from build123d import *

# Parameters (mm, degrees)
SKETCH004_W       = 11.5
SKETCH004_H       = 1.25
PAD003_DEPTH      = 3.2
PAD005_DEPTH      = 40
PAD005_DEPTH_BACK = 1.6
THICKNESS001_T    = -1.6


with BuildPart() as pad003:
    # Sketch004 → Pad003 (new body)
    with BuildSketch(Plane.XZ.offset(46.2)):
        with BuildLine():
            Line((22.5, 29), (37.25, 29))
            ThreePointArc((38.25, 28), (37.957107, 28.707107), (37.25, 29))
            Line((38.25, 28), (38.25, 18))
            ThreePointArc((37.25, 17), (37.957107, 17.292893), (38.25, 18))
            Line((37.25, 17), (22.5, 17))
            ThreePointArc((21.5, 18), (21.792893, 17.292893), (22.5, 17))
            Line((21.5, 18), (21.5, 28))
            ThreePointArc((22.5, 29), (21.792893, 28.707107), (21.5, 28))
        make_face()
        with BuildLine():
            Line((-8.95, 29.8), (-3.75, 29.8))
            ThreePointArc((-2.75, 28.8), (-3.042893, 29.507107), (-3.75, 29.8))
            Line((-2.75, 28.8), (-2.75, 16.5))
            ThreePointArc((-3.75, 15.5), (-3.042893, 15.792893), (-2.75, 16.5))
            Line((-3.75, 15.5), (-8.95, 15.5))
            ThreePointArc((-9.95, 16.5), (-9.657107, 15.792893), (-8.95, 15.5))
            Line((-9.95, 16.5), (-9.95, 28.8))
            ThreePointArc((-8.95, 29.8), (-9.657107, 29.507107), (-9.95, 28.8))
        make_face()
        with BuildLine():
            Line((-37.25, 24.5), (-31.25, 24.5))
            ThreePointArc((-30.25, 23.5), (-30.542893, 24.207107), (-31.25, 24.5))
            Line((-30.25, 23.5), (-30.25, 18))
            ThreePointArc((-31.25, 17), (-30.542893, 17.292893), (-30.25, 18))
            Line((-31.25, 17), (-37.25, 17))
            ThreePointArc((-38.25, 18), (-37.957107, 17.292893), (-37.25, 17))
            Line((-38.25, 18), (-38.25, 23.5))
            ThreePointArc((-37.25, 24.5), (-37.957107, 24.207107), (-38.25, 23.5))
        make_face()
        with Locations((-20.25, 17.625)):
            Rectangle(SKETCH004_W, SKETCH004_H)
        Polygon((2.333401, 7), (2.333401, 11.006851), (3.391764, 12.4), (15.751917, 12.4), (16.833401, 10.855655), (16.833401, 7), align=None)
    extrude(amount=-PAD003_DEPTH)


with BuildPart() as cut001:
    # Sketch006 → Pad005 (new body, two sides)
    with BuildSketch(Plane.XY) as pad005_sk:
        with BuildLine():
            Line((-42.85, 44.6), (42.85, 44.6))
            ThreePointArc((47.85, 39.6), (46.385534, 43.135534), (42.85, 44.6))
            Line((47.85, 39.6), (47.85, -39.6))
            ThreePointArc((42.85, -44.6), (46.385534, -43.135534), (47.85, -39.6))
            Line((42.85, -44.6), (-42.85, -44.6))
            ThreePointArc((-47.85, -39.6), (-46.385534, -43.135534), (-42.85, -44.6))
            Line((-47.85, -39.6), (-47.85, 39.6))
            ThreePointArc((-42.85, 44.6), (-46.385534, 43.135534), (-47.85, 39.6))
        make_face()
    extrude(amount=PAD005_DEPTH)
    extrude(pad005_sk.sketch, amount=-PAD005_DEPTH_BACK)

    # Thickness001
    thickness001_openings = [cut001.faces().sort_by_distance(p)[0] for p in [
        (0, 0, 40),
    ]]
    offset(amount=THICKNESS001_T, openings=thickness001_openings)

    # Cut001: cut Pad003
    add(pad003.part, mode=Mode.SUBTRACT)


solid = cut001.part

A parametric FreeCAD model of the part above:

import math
import FreeCAD as App
import Part
import Sketcher

V = App.Vector
Q = App.Units.Quantity


def faces_at(feature, points):
    """Names of the faces that lie closest to the given points."""
    faces = feature.Shape.Faces
    near = lambda p: min(range(len(faces)), key=lambda i: faces[i].distToShape(Part.Vertex(*p))[0])
    return sorted({f"Face{near(p) + 1}" for p in points})


def add_polygon(sketch, points):
    """Adds a closed chain of lines whose ends are joined by coincident constraints."""
    first, n = sketch.GeometryCount, len(points)
    for a, b in zip(points, points[1:] + points[:1]):
        sketch.addGeometry(Part.LineSegment(App.Vector(*a, 0), App.Vector(*b, 0)), False)
    for i in range(n):
        sketch.addConstraint(Sketcher.Constraint("Coincident", first + i, 2, first + (i + 1) % n, 1))

doc = App.newDocument("Part")
params = doc.addObject("Spreadsheet::Sheet", "Params")
for row, (alias, value) in enumerate([
    ("sketch1_radius", "0.999999 mm"),
    ("sketch1_width", "6 mm"),
    ("sketch1_height", "10 mm"),
    ("sketch1_width2", "5.2 mm"),
    ("sketch1_width3", "11.5 mm"),
    ("pad1_length", "3.2 mm"),
    ("sketch2_radius", "5 mm"),
    ("sketch2_width", "85.7 mm"),
    ("sketch2_height", "79.2 mm"),
    ("pad2_length", "40 mm"),
    ("pad2_length2", "1.6 mm"),
    ("thickness_wall", "1.6 mm"),
], start=1):
    params.set(f"A{row}", alias)
    params.set(f"B{row}", "=" + value)
    params.setAlias(f"B{row}", alias)

body = doc.addObject("PartDesign::Body", "Body")
body.AllowCompound = True

# Sketch on XZ plane
sketch1 = body.newObject("Sketcher::SketchObject", "Sketch")
sketch1.AttachmentSupport = (doc.getObject("XZ_Plane"), [""])
sketch1.MapMode = "FlatFace"
sketch1.AttachmentOffset = App.Placement(V(0, 0, 46.2), App.Rotation())
sketch1.addGeometry(Part.LineSegment(V(37.2, 29, 0), V(22.5, 29, 0)), False)  # 0
sketch1.addGeometry(Part.ArcOfCircle(Part.Circle(V(22.5, 28, 0), V(0, 0, 1), 1), math.radians(90), math.radians(180)), False)  # 1
sketch1.addGeometry(Part.LineSegment(V(21.5, 28, 0), V(21.5, 18, 0)), False)  # 2
sketch1.addGeometry(Part.ArcOfCircle(Part.Circle(V(22.5, 18, 0), V(0, 0, 1), 1), math.radians(180), math.radians(270)), False)  # 3
sketch1.addGeometry(Part.LineSegment(V(22.5, 17, 0), V(37.2, 17, 0)), False)  # 4
sketch1.addGeometry(Part.ArcOfCircle(Part.Circle(V(37.3, 18, 0), V(0, 0, 1), 1), math.radians(-90), math.radians(0)), False)  # 5
sketch1.addGeometry(Part.LineSegment(V(38.2, 18, 0), V(38.2, 28, 0)), False)  # 6
sketch1.addGeometry(Part.ArcOfCircle(Part.Circle(V(37.3, 28, 0), V(0, 0, 1), 1), math.radians(0), math.radians(90)), False)  # 7
sketch1.addGeometry(Part.LineSegment(V(-3.8, 29.8, 0), V(-8.9, 29.8, 0)), False)  # 8
sketch1.addGeometry(Part.ArcOfCircle(Part.Circle(V(-9, 28.8, 0), V(0, 0, 1), 1), math.radians(90), math.radians(180)), False)  # 9
sketch1.addGeometry(Part.LineSegment(V(-9.9, 28.8, 0), V(-9.9, 16.5, 0)), False)  # 10
sketch1.addGeometry(Part.ArcOfCircle(Part.Circle(V(-9, 16.5, 0), V(0, 0, 1), 1), math.radians(180), math.radians(270)), False)  # 11
sketch1.addGeometry(Part.LineSegment(V(-8.9, 15.5, 0), V(-3.8, 15.5, 0)), False)  # 12
sketch1.addGeometry(Part.ArcOfCircle(Part.Circle(V(-3.7, 16.5, 0), V(0, 0, 1), 1), math.radians(-90), math.radians(0)), False)  # 13
sketch1.addGeometry(Part.LineSegment(V(-2.8, 16.5, 0), V(-2.8, 28.8, 0)), False)  # 14
sketch1.addGeometry(Part.ArcOfCircle(Part.Circle(V(-3.7, 28.8, 0), V(0, 0, 1), 1), math.radians(0), math.radians(90)), False)  # 15
sketch1.addGeometry(Part.LineSegment(V(-31.2, 24.5, 0), V(-37.2, 24.5, 0)), False)  # 16
sketch1.addGeometry(Part.ArcOfCircle(Part.Circle(V(-37.3, 23.5, 0), V(0, 0, 1), 1), math.radians(90), math.radians(180)), False)  # 17
sketch1.addGeometry(Part.LineSegment(V(-38.2, 23.5, 0), V(-38.2, 18, 0)), False)  # 18
sketch1.addGeometry(Part.ArcOfCircle(Part.Circle(V(-37.3, 18, 0), V(0, 0, 1), 1), math.radians(180), math.radians(270)), False)  # 19
sketch1.addGeometry(Part.LineSegment(V(-37.2, 17, 0), V(-31.2, 17, 0)), False)  # 20
sketch1.addGeometry(Part.ArcOfCircle(Part.Circle(V(-31.2, 18, 0), V(0, 0, 1), 1), math.radians(-90), math.radians(0)), False)  # 21
sketch1.addGeometry(Part.LineSegment(V(-30.2, 18, 0), V(-30.2, 23.5, 0)), False)  # 22
sketch1.addGeometry(Part.ArcOfCircle(Part.Circle(V(-31.2, 23.5, 0), V(0, 0, 1), 1), math.radians(0), math.radians(90)), False)  # 23
add_polygon(sketch1, [(-26, 18.2), (-26, 17), (-14.5, 17), (-14.5, 18.2)])  # lines 24-27
add_polygon(sketch1, [(2.3, 11), (2.3, 7), (16.8, 7), (16.8, 10.9), (15.8, 12.4), (3.4, 12.4)])  # lines 28-33
sketch1.addConstraint([
    Sketcher.Constraint("Tangent", 0, 2, 1, 1),
    Sketcher.Constraint("Tangent", 1, 2, 2, 1),
    Sketcher.Constraint("Tangent", 2, 2, 3, 1),
    Sketcher.Constraint("Tangent", 3, 2, 4, 1),
    Sketcher.Constraint("Tangent", 4, 2, 5, 1),
    Sketcher.Constraint("Tangent", 5, 2, 6, 1),
    Sketcher.Constraint("Tangent", 6, 2, 7, 1),
    Sketcher.Constraint("Tangent", 7, 2, 0, 1),
    Sketcher.Constraint("Tangent", 8, 2, 9, 1),
    Sketcher.Constraint("Tangent", 9, 2, 10, 1),
    Sketcher.Constraint("Tangent", 10, 2, 11, 1),
    Sketcher.Constraint("Tangent", 11, 2, 12, 1),
    Sketcher.Constraint("Tangent", 12, 2, 13, 1),
    Sketcher.Constraint("Tangent", 13, 2, 14, 1),
    Sketcher.Constraint("Tangent", 14, 2, 15, 1),
    Sketcher.Constraint("Tangent", 15, 2, 8, 1),
    Sketcher.Constraint("Tangent", 16, 2, 17, 1),
    Sketcher.Constraint("Tangent", 17, 2, 18, 1),
    Sketcher.Constraint("Tangent", 18, 2, 19, 1),
    Sketcher.Constraint("Tangent", 19, 2, 20, 1),
    Sketcher.Constraint("Tangent", 20, 2, 21, 1),
    Sketcher.Constraint("Tangent", 21, 2, 22, 1),
    Sketcher.Constraint("Tangent", 22, 2, 23, 1),
    Sketcher.Constraint("Tangent", 23, 2, 16, 1),
    Sketcher.Constraint("Horizontal", 0),
    Sketcher.Constraint("Vertical", 2),
    Sketcher.Constraint("Horizontal", 4),
    Sketcher.Constraint("Vertical", 6),
    Sketcher.Constraint("Horizontal", 8),
    Sketcher.Constraint("Vertical", 10),
    Sketcher.Constraint("Horizontal", 12),
    Sketcher.Constraint("Vertical", 14),
    Sketcher.Constraint("Horizontal", 16),
    Sketcher.Constraint("Vertical", 18),
    Sketcher.Constraint("Horizontal", 20),
    Sketcher.Constraint("Vertical", 22),
    Sketcher.Constraint("Vertical", 24),
    Sketcher.Constraint("Horizontal", 25),
    Sketcher.Constraint("Vertical", 26),
    Sketcher.Constraint("Horizontal", 27),
    Sketcher.Constraint("Vertical", 28),
    Sketcher.Constraint("Horizontal", 29),
    Sketcher.Constraint("Vertical", 30),
    Sketcher.Constraint("Horizontal", 32),
    Sketcher.Constraint("Equal", 1, 3),
    Sketcher.Constraint("Equal", 3, 5),
    Sketcher.Constraint("Equal", 5, 7),
    Sketcher.Constraint("Equal", 7, 9),
    Sketcher.Constraint("Equal", 9, 11),
    Sketcher.Constraint("Equal", 11, 13),
    Sketcher.Constraint("Equal", 13, 15),
    Sketcher.Constraint("Equal", 15, 17),
    Sketcher.Constraint("Equal", 17, 19),
    Sketcher.Constraint("Equal", 19, 21),
    Sketcher.Constraint("Equal", 21, 23),
    Sketcher.Constraint("Symmetric", 5, 3, 19, 3, -2),
    Sketcher.Constraint("Horizontal", 20, 2, 24, 2),
    Sketcher.Constraint("Radius", 1, Q("0.999999 mm")),
    Sketcher.Constraint("DistanceX", 16, 2, 16, 1, Q("6 mm")),
    Sketcher.Constraint("DistanceY", 2, 2, 2, 1, Q("10 mm")),
    Sketcher.Constraint("DistanceX", 8, 2, 8, 1, Q("5.2 mm")),
    Sketcher.Constraint("DistanceX", 25, 1, 25, 2, Q("11.5 mm")),
    Sketcher.Constraint("DistanceX", 29, 1, 29, 2, Q("14.5 mm")),
    Sketcher.Constraint("DistanceY", 10, 2, 10, 1, Q("12.3 mm")),
    Sketcher.Constraint("DistanceY", 18, 2, 18, 1, Q("5.5 mm")),
    Sketcher.Constraint("DistanceY", -1, 1, 1, 3, Q("28.000001 mm")),
    Sketcher.Constraint("DistanceX", 24, 2, -1, 1, Q("26 mm")),
    Sketcher.Constraint("DistanceY", -1, 1, 28, 2, Q("7 mm")),
    Sketcher.Constraint("DistanceX", 13, 3, 5, 3, Q("41 mm")),
    Sketcher.Constraint("DistanceY", 11, 3, 17, 3, Q("7.000001 mm")),
    Sketcher.Constraint("DistanceX", 0, 2, 0, 1, Q("14.75 mm")),
    Sketcher.Constraint("DistanceY", 24, 2, 24, 1, Q("1.25 mm")),
    Sketcher.Constraint("DistanceX", -1, 1, 1, 3, Q("22.499999 mm")),
    Sketcher.Constraint("DistanceY", -1, 1, 31, 2, Q("12.4 mm")),
    Sketcher.Constraint("DistanceY", 28, 2, 28, 1, Q("4.006851 mm")),
    Sketcher.Constraint("DistanceX", -1, 1, 28, 2, Q("2.333401 mm")),
    Sketcher.Constraint("Distance", 33, Q("1.74957 mm")),
    Sketcher.Constraint("DistanceX", 32, 2, 32, 1, Q("12.360153 mm")),
    Sketcher.Constraint("DistanceY", 30, 1, 30, 2, Q("3.855655 mm")),
])
sketch1.setExpression("Constraints[67]", "Params.sketch1_radius")
sketch1.setExpression("Constraints[68]", "Params.sketch1_width")
sketch1.setExpression("Constraints[69]", "Params.sketch1_height")
sketch1.setExpression("Constraints[70]", "Params.sketch1_width2")
sketch1.setExpression("Constraints[71]", "Params.sketch1_width3")
pad1 = body.newObject("PartDesign::Pad", "Pad")
pad1.Profile = sketch1
pad1.setExpression("Length", "Params.pad1_length")
pad1.Reversed = True
body2 = doc.addObject("PartDesign::Body", "Body001")

# Sketch on XY plane
sketch2 = body2.newObject("Sketcher::SketchObject", "Sketch001")
sketch2.AttachmentSupport = (doc.getObject("XY_Plane001"), [""])
sketch2.MapMode = "FlatFace"
sketch2.addGeometry([
    Part.LineSegment(V(42.9, 44.6, 0), V(-42.9, 44.6, 0)),  # 0
    Part.ArcOfCircle(Part.Circle(V(-42.9, 39.6, 0), V(0, 0, 1), 5), math.radians(90), math.radians(180)),  # 1
    Part.LineSegment(V(-47.9, 39.6, 0), V(-47.9, -39.6, 0)),  # 2
    Part.ArcOfCircle(Part.Circle(V(-42.9, -39.6, 0), V(0, 0, 1), 5), math.radians(180), math.radians(270)),  # 3
    Part.LineSegment(V(-42.9, -44.6, 0), V(42.9, -44.6, 0)),  # 4
    Part.ArcOfCircle(Part.Circle(V(42.9, -39.6, 0), V(0, 0, 1), 5), math.radians(-90), math.radians(0)),  # 5
    Part.LineSegment(V(47.9, -39.6, 0), V(47.9, 39.6, 0)),  # 6
    Part.ArcOfCircle(Part.Circle(V(42.9, 39.6, 0), V(0, 0, 1), 5), math.radians(0), math.radians(90)),  # 7
], False)
sketch2.addConstraint([
    Sketcher.Constraint("Tangent", 0, 2, 1, 1),
    Sketcher.Constraint("Tangent", 1, 2, 2, 1),
    Sketcher.Constraint("Tangent", 2, 2, 3, 1),
    Sketcher.Constraint("Tangent", 3, 2, 4, 1),
    Sketcher.Constraint("Tangent", 4, 2, 5, 1),
    Sketcher.Constraint("Tangent", 5, 2, 6, 1),
    Sketcher.Constraint("Tangent", 6, 2, 7, 1),
    Sketcher.Constraint("Tangent", 7, 2, 0, 1),
    Sketcher.Constraint("Horizontal", 0),
    Sketcher.Constraint("Vertical", 2),
    Sketcher.Constraint("Horizontal", 4),
    Sketcher.Constraint("Vertical", 6),
    Sketcher.Constraint("Equal", 1, 3),
    Sketcher.Constraint("Equal", 3, 5),
    Sketcher.Constraint("Equal", 5, 7),
    Sketcher.Constraint("Symmetric", 1, 3, 5, 3, -1, 1),
    Sketcher.Constraint("Radius", 1, Q("5 mm")),
    Sketcher.Constraint("DistanceX", 0, 2, 0, 1, Q("85.7 mm")),
    Sketcher.Constraint("DistanceY", 2, 2, 2, 1, Q("79.2 mm")),
])
sketch2.setExpression("Constraints[16]", "Params.sketch2_radius")
sketch2.setExpression("Constraints[17]", "Params.sketch2_width")
sketch2.setExpression("Constraints[18]", "Params.sketch2_height")
pad2 = body2.newObject("PartDesign::Pad", "Pad001")
pad2.Profile = sketch2
pad2.Type = "TwoLengths"
pad2.setExpression("Length", "Params.pad2_length")
pad2.setExpression("Length2", "Params.pad2_length2")
doc.recompute()

thickness = body2.newObject("PartDesign::Thickness", "Thickness")
thickness.Base = (pad2, faces_at(pad2, [(0, 0, 40)]))
thickness.setExpression("Value", "Params.thickness_wall")
thickness.Reversed = True
thickness.Join = "Arc"
doc.recompute()

boolean = body2.newObject("PartDesign::Boolean", "Boolean")
boolean.Type = "Cut"
boolean.addObjects([body])

doc.recompute()
